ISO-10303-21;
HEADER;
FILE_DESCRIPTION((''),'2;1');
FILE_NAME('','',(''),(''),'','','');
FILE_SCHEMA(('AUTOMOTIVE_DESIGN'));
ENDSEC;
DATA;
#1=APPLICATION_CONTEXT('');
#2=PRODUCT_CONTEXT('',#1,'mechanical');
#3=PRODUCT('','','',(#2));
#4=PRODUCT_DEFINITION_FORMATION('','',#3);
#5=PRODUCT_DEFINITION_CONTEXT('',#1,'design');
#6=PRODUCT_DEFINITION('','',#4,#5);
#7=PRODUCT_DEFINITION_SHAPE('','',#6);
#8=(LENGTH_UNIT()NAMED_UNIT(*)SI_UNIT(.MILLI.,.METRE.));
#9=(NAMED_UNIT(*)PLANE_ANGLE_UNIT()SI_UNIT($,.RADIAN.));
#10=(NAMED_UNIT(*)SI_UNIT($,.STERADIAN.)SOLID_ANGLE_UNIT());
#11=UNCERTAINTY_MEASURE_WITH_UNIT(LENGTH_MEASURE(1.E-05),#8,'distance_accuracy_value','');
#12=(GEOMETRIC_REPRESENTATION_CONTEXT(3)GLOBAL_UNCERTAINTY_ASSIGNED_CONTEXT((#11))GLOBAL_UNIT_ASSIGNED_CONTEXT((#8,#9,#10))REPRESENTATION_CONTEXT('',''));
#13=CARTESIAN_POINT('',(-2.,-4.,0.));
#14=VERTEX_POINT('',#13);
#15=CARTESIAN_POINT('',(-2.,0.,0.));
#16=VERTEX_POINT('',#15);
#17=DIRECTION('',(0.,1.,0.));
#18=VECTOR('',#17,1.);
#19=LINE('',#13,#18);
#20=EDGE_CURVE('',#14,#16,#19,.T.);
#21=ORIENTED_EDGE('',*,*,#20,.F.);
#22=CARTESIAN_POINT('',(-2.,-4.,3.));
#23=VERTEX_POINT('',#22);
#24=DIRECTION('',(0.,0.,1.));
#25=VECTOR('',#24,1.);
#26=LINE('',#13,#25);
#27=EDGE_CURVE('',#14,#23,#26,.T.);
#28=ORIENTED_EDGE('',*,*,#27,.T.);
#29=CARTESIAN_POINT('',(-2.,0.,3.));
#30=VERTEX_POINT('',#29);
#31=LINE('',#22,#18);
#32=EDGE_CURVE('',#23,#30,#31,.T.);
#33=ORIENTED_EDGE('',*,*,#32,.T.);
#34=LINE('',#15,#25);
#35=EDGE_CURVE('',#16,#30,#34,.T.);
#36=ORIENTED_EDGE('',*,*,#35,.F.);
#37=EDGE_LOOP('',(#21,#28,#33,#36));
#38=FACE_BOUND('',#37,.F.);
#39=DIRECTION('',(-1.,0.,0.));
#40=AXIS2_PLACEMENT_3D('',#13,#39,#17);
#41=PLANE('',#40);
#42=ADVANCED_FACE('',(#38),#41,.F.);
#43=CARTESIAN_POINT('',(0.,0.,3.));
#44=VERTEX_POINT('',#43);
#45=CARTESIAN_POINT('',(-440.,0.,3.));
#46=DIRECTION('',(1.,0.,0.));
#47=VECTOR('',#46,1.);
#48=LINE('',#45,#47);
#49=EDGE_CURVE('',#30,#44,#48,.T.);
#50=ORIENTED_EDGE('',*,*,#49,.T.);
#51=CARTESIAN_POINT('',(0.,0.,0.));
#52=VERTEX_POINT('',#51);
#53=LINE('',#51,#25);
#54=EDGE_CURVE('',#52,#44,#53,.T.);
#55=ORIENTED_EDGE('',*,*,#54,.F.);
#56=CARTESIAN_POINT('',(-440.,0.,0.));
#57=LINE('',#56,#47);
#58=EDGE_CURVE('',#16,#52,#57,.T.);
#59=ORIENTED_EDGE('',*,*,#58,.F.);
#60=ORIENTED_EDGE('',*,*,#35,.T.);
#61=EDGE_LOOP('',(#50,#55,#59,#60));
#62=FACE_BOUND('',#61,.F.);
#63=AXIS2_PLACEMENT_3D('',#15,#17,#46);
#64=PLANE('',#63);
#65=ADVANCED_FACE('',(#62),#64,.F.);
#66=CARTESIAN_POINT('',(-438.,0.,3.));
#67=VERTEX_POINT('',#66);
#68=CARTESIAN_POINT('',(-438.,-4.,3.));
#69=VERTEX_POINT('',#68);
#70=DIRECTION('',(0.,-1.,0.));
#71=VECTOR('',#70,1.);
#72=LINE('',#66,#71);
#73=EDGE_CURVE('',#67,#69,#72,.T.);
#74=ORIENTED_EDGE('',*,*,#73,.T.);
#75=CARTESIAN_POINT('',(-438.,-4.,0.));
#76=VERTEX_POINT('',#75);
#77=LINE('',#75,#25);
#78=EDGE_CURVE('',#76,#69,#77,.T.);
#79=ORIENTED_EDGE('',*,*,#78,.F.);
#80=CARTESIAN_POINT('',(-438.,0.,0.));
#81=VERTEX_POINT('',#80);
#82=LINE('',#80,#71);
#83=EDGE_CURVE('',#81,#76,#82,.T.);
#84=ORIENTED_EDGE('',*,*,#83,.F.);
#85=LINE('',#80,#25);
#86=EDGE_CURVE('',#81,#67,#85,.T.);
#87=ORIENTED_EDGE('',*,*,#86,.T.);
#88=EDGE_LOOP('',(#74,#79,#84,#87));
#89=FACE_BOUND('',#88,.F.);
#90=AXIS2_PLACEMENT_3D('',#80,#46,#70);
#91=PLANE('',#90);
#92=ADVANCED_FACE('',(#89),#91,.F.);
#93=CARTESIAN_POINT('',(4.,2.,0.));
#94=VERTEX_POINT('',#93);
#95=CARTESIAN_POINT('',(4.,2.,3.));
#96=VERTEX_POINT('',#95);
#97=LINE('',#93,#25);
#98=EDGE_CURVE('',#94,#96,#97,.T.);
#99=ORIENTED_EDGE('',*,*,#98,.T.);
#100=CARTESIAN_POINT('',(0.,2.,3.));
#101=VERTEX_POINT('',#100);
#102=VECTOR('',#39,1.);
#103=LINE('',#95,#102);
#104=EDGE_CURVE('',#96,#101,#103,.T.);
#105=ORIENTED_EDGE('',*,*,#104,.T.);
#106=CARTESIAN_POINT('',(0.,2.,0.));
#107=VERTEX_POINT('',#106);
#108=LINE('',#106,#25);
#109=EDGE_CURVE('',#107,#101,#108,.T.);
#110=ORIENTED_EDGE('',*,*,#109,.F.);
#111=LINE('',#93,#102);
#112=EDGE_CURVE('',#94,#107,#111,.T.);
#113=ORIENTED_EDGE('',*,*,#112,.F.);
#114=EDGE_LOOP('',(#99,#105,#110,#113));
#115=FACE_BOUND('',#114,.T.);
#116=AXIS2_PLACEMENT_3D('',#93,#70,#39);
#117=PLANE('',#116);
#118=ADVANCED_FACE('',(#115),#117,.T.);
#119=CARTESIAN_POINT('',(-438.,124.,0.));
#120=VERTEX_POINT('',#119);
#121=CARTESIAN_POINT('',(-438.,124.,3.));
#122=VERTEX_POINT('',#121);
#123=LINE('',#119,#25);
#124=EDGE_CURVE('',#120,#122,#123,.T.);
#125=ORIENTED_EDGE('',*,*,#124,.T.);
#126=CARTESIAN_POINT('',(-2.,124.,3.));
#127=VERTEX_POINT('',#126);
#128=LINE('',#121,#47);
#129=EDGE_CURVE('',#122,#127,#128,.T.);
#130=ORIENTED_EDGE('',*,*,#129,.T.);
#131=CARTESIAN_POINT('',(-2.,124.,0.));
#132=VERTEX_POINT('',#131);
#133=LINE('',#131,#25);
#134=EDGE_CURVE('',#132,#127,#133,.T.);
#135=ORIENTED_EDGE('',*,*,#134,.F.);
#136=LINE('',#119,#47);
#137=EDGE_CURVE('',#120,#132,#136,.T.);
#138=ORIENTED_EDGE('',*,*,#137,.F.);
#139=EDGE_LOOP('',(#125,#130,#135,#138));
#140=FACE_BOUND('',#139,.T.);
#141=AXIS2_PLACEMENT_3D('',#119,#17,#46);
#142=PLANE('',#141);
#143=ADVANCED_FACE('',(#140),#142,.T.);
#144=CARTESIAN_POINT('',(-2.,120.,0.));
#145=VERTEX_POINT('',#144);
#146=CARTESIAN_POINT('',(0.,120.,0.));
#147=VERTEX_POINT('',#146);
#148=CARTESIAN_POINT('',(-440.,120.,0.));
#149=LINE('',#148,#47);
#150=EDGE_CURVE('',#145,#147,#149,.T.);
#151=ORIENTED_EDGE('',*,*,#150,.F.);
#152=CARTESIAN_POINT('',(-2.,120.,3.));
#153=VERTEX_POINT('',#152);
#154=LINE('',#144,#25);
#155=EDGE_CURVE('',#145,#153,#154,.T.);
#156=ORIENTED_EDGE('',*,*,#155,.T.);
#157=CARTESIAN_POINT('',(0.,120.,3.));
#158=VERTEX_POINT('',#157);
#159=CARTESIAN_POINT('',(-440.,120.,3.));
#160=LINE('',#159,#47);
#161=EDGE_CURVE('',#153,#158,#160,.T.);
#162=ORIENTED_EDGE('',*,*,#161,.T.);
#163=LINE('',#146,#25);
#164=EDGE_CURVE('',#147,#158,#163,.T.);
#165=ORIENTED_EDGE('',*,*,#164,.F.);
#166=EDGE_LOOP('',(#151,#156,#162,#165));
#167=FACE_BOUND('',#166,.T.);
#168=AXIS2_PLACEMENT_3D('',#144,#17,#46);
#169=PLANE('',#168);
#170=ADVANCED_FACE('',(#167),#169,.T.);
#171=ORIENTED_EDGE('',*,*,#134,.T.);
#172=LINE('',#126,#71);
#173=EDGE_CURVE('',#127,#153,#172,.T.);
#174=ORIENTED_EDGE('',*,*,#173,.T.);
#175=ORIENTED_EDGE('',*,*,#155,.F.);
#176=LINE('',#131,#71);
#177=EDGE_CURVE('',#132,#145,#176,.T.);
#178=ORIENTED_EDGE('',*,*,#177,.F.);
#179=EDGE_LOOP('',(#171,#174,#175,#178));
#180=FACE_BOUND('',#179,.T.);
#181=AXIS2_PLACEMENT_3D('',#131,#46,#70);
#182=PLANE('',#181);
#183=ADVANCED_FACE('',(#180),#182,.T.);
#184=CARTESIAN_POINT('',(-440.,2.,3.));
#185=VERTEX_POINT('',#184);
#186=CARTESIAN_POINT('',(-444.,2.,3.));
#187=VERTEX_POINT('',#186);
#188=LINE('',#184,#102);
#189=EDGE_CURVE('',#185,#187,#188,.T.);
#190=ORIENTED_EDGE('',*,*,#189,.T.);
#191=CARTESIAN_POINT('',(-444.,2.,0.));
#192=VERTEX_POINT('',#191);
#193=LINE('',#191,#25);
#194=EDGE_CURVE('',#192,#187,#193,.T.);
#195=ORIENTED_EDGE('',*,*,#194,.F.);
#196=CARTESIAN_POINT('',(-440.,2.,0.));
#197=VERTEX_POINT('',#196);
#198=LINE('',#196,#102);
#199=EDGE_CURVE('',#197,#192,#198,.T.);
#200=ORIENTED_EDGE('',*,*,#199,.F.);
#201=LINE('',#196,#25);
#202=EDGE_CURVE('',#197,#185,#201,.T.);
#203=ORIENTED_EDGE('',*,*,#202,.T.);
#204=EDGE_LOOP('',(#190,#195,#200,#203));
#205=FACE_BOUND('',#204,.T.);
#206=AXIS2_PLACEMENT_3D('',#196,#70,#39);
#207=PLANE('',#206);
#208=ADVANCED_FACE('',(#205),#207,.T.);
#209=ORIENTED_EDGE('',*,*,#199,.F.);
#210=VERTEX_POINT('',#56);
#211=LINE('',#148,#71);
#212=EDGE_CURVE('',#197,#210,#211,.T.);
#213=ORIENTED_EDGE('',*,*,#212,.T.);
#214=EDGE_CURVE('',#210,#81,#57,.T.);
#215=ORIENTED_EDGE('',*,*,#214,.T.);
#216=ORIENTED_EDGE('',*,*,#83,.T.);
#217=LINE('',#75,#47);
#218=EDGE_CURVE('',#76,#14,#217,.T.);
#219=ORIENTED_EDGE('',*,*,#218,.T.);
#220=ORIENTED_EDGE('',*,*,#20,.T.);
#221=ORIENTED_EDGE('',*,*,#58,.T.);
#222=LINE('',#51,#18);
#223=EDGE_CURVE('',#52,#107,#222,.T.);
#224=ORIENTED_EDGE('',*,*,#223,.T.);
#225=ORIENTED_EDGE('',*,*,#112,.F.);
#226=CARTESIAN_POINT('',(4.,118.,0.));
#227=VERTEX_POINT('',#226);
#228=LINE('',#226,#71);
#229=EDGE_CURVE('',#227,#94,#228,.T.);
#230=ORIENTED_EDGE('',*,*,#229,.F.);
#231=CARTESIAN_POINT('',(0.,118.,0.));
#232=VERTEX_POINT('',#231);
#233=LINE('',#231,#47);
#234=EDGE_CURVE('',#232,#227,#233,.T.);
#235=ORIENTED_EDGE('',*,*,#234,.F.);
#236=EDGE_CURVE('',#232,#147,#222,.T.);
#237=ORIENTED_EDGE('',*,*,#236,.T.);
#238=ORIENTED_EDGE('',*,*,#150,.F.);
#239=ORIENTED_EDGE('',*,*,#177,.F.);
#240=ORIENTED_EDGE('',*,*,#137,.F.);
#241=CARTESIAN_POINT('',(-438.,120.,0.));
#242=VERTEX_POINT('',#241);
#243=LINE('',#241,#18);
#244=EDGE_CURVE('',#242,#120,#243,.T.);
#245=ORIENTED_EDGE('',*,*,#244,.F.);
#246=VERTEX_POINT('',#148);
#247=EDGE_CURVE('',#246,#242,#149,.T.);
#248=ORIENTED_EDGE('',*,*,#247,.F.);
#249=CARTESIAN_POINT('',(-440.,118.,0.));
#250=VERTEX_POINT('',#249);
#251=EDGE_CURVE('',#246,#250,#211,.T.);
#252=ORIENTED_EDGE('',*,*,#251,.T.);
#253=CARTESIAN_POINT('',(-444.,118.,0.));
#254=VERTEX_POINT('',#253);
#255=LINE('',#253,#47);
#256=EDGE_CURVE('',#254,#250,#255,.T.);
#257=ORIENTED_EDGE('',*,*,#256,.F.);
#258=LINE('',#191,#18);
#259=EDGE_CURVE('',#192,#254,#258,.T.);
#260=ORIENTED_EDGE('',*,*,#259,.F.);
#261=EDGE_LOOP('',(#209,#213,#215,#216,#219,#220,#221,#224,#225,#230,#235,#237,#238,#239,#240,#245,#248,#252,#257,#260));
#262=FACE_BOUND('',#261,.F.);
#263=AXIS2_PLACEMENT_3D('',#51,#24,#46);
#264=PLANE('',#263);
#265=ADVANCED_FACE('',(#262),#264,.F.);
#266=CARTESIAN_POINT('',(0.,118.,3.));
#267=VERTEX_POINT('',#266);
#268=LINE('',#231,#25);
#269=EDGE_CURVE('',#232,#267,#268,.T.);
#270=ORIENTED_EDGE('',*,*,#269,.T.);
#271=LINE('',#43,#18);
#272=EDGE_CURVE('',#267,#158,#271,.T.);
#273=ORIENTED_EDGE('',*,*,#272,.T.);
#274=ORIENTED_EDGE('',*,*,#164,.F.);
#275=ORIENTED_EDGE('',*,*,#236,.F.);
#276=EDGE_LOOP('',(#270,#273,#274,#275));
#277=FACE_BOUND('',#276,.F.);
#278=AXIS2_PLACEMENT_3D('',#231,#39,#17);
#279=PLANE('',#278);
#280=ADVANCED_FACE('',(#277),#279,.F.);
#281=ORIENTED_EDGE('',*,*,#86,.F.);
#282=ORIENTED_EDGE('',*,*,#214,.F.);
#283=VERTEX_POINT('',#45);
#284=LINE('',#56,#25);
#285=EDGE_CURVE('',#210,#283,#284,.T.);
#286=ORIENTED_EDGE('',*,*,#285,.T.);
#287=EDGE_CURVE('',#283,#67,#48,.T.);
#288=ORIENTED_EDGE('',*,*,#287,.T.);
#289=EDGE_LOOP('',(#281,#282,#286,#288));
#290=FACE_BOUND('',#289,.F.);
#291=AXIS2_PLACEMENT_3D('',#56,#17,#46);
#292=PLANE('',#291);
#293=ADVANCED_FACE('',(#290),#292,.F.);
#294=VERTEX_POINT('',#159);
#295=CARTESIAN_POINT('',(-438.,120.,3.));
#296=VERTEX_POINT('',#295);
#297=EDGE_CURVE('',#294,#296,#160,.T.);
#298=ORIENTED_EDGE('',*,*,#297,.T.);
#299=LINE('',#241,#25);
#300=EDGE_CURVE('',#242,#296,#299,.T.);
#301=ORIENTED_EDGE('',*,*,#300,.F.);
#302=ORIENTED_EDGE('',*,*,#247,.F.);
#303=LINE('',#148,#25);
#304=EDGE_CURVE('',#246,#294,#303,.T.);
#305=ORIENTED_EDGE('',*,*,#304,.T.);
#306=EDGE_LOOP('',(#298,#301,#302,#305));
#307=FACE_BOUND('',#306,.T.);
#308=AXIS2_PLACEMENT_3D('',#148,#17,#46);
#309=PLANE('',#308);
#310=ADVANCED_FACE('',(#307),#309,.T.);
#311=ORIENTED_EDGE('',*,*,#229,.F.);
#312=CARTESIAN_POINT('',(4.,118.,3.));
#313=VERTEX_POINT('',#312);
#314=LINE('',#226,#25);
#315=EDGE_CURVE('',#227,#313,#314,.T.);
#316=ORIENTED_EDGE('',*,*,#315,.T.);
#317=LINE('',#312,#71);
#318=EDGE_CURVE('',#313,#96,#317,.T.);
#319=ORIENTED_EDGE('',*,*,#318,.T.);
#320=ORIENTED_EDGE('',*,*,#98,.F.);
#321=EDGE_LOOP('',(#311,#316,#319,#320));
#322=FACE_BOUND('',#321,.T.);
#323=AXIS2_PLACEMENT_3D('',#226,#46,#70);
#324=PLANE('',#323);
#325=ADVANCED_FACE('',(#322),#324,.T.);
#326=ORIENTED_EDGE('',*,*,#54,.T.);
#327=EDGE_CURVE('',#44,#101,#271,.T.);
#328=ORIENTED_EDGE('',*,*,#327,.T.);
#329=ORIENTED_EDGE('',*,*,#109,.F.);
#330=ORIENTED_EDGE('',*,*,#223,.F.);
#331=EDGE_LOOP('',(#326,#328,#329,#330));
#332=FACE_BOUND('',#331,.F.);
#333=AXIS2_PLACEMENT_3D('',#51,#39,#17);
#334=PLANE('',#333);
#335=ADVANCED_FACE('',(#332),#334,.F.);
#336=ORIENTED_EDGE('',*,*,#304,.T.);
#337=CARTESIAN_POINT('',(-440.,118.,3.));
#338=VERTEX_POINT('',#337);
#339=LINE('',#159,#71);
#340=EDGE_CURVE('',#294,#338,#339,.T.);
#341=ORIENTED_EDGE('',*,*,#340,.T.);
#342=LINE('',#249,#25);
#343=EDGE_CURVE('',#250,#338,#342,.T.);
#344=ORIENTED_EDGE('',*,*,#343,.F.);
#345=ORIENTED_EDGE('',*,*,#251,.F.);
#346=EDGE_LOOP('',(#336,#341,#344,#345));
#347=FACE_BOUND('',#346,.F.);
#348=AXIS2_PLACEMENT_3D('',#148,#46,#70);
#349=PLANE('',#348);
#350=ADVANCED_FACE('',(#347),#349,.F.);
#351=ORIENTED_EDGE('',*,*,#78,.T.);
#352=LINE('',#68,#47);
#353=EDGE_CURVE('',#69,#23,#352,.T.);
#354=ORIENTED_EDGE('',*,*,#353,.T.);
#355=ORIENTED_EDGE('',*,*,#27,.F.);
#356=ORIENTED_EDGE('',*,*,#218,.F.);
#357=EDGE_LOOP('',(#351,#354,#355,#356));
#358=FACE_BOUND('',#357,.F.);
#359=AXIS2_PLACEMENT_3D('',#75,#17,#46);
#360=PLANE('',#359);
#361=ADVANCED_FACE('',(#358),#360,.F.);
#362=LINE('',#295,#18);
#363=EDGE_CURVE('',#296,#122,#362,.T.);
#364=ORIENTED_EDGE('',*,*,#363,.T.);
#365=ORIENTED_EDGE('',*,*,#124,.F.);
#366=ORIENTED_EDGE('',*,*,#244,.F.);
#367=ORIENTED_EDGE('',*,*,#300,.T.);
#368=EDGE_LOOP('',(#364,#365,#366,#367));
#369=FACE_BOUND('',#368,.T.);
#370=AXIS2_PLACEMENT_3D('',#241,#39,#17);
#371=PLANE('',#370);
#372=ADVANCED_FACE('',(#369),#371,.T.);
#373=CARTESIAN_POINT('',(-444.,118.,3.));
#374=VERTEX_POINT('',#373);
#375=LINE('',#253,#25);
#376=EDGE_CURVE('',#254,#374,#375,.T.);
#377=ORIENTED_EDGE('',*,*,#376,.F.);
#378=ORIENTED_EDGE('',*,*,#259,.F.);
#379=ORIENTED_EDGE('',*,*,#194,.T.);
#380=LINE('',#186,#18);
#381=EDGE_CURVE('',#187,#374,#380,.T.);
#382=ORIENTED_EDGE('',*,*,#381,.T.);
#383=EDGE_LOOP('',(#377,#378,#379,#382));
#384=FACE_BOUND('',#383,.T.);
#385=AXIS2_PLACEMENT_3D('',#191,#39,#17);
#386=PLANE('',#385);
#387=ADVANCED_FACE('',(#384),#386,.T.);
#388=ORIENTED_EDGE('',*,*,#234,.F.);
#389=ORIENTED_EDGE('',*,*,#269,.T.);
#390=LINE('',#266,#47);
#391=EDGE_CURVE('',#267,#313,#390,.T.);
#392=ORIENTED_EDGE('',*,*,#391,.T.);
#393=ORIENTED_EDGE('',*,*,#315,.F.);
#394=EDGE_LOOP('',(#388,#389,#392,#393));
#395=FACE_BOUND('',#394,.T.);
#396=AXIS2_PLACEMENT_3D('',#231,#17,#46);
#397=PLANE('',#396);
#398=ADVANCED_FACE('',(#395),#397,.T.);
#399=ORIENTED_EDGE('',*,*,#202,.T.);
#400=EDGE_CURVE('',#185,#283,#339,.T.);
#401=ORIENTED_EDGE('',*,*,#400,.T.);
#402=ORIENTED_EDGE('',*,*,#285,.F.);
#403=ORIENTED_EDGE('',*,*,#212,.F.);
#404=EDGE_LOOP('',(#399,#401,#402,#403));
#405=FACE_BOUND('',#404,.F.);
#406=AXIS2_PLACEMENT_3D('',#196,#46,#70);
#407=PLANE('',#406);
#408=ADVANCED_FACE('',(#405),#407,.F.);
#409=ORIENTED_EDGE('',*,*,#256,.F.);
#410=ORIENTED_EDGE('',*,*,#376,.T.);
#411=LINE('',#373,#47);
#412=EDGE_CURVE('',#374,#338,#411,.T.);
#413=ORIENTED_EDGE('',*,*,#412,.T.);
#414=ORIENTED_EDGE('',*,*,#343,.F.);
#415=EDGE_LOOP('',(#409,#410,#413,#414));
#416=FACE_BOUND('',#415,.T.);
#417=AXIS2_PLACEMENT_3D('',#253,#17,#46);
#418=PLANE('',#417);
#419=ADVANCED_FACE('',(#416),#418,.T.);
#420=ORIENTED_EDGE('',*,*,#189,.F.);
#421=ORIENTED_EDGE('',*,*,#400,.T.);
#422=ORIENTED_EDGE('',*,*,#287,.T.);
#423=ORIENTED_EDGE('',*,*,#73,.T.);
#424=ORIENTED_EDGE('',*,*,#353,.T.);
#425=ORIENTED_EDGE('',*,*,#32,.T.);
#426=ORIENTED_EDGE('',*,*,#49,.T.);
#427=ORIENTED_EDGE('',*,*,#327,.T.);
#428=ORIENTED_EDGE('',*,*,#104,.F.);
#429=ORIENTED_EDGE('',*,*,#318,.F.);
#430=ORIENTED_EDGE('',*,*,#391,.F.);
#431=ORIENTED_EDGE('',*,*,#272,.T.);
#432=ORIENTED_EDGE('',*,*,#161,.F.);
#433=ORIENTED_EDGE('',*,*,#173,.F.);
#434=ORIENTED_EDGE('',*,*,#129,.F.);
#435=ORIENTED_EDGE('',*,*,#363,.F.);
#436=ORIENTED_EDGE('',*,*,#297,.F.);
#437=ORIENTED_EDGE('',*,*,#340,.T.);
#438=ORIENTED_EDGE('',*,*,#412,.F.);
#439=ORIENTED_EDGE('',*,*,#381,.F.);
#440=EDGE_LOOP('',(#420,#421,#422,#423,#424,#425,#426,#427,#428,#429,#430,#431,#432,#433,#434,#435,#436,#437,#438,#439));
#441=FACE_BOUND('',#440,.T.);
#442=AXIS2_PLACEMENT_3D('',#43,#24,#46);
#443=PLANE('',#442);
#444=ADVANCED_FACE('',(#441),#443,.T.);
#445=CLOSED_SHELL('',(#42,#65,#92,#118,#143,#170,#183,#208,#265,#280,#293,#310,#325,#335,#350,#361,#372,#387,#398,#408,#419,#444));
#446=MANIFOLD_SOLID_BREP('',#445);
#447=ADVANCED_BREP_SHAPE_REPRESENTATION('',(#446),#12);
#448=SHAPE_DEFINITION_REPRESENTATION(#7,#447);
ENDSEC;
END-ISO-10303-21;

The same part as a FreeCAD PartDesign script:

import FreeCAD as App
import Part
import Sketcher

V = App.Vector


def add_polygon(sketch, points):
    """Adds a closed chain of lines whose ends are joined by coincident constraints."""
    first, n = sketch.GeometryCount, len(points)
    for a, b in zip(points, points[1:] + points[:1]):
        sketch.addGeometry(Part.LineSegment(App.Vector(*a, 0), App.Vector(*b, 0)), False)
    for i in range(n):
        sketch.addConstraint(Sketcher.Constraint("Coincident", first + i, 2, first + (i + 1) % n, 1))

doc = App.newDocument("Part")
body = doc.addObject("PartDesign::Body", "Body")

# Sketch on XY plane
sketch1 = body.newObject("Sketcher::SketchObject", "Sketch")
sketch1.AttachmentSupport = (doc.getObject("XY_Plane"), [""])
sketch1.MapMode = "FlatFace"
add_polygon(sketch1, [(-2, 0), (0, 0), (0, 2), (4, 2), (4, 118), (0, 118), (0, 120), (-2, 120), (-2, 124), (-438, 124), (-438, 120), (-440, 120), (-440, 118), (-444, 118), (-444, 2), (-440, 2), (-440, 0), (-438, 0), (-438, -4), (-2, -4)])  # lines 0-19
sketch1.addConstraint([
    Sketcher.Constraint("Horizontal", 0),
    Sketcher.Constraint("Vertical", 1),
    Sketcher.Constraint("Horizontal", 2),
    Sketcher.Constraint("Vertical", 3),
    Sketcher.Constraint("Horizontal", 4),
    Sketcher.Constraint("Vertical", 5),
    Sketcher.Constraint("Horizontal", 6),
    Sketcher.Constraint("Vertical", 7),
    Sketcher.Constraint("Horizontal", 8),
    Sketcher.Constraint("Vertical", 9),
    Sketcher.Constraint("Horizontal", 10),
    Sketcher.Constraint("Vertical", 11),
    Sketcher.Constraint("Horizontal", 12),
    Sketcher.Constraint("Vertical", 13),
    Sketcher.Constraint("Horizontal", 14),
    Sketcher.Constraint("Vertical", 15),
    Sketcher.Constraint("Horizontal", 16),
    Sketcher.Constraint("Vertical", 17),
    Sketcher.Constraint("Horizontal", 18),
    Sketcher.Constraint("Vertical", 19),
    Sketcher.Constraint("Coincident", 0, 2, -1, 1),
    Sketcher.Constraint("PointOnObject", 4, 2, -2),
    Sketcher.Constraint("PointOnObject", 15, 2, -1),
    Sketcher.Constraint("Horizontal", 6, 2, 9, 2),
    Sketcher.Constraint("Horizontal", 4, 2, 11, 2),
    Sketcher.Constraint("Horizontal", 2, 2, 13, 2),
    Sketcher.Constraint("Vertical", 11, 2, 14, 2),
    Sketcher.Constraint("Vertical", 9, 2, 16, 2),
    Sketcher.Constraint("Vertical", 7, 2, 18, 2),
    Sketcher.Constraint("Equal", 6, 10),
    Sketcher.Constraint("Equal", 4, 12),
    Sketcher.Constraint("Equal", 16, 1),
    Sketcher.Constraint("Equal", 1, 5),
    Sketcher.Constraint("Equal", 14, 7),
    Sketcher.Constraint("Equal", 9, 17),
    Sketcher.Constraint("DistanceX", 0, 1, 0, 2, 2.0),
    Sketcher.Constraint("DistanceX", 2, 1, 2, 2, 4.0),
    Sketcher.Constraint("DistanceX", 8, 2, 8, 1, 436.0),
    Sketcher.Constraint("DistanceY", 3, 1, 3, 2, 116.0),
])
pad1 = body.newObject("PartDesign::Pad", "Pad")
pad1.Profile = sketch1
pad1.Length = 3

doc.recompute()
